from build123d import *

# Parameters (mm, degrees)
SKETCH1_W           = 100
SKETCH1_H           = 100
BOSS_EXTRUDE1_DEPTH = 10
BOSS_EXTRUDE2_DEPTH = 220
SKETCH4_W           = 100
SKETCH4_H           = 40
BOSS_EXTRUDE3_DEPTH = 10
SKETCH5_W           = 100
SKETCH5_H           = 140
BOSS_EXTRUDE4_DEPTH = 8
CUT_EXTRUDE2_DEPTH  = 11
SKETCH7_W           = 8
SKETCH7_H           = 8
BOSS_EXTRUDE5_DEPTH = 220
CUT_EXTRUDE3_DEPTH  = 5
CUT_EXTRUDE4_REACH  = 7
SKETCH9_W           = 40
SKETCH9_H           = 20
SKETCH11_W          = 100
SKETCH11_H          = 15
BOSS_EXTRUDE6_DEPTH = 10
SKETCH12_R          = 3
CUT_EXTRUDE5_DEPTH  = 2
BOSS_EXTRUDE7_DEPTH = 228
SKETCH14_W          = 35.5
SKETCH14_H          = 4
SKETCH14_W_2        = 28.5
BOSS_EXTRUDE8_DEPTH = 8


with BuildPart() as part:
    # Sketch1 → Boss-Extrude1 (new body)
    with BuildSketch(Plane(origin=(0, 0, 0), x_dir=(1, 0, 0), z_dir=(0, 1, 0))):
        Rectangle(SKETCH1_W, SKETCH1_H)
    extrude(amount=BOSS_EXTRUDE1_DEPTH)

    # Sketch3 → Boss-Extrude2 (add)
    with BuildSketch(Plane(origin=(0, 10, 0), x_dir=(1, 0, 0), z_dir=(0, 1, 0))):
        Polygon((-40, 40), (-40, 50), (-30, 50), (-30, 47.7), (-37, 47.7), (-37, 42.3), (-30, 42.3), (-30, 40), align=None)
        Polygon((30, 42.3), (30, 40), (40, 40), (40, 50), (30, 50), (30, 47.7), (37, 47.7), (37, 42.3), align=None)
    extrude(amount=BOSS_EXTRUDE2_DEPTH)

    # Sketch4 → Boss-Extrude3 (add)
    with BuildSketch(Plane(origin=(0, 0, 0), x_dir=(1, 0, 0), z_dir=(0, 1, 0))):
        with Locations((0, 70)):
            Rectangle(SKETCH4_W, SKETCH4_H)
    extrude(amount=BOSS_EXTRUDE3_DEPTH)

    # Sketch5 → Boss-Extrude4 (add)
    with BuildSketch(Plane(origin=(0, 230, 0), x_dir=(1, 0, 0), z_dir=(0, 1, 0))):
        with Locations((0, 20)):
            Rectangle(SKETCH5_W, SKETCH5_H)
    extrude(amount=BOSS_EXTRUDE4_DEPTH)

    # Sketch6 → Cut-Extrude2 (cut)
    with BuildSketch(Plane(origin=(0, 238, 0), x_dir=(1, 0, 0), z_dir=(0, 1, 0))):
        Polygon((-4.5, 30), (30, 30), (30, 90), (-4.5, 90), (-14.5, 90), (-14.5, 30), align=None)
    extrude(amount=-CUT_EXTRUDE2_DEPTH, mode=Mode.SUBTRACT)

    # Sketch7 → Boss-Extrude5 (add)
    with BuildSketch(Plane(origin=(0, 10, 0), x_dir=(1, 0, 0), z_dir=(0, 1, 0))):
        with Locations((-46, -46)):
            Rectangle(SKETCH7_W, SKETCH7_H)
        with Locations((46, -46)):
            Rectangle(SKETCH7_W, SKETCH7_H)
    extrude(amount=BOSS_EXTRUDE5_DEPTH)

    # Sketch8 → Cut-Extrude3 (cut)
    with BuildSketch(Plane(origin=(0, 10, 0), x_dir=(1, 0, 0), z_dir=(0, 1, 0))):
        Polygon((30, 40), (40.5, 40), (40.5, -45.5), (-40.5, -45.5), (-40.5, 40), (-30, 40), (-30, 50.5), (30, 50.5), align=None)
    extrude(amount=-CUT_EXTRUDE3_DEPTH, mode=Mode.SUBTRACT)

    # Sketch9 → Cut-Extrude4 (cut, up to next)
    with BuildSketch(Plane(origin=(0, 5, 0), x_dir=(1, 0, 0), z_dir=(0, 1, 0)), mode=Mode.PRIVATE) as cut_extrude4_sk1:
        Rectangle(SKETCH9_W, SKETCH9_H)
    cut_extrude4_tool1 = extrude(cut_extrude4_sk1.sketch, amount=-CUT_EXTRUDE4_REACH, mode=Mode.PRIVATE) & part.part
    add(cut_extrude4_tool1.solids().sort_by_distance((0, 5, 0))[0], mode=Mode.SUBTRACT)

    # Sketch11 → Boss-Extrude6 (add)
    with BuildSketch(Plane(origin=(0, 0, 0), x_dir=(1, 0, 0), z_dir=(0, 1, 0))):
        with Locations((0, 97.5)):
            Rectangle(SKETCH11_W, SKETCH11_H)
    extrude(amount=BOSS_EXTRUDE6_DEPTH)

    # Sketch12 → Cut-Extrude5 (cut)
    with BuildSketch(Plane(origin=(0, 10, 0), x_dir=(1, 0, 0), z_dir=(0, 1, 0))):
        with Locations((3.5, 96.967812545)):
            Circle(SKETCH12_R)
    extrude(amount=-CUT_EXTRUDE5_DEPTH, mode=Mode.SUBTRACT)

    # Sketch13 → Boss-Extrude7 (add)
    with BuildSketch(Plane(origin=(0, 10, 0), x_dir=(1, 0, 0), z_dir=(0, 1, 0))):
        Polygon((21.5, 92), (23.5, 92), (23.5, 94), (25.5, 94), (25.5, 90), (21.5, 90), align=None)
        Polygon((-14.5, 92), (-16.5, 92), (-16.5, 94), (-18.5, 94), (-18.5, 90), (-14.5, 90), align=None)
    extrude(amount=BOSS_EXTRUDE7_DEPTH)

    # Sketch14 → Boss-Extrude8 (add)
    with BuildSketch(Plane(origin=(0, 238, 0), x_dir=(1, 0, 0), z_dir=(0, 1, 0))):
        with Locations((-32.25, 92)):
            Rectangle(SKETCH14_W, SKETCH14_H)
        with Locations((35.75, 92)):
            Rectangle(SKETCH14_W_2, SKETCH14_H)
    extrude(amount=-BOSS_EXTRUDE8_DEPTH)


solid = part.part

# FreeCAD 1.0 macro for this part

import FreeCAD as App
import Part
import Sketcher

V = App.Vector
Q = App.Units.Quantity


def add_polygon(sketch, points):
    """Adds a closed chain of lines whose ends are joined by coincident constraints."""
    first, n = sketch.GeometryCount, len(points)
    for a, b in zip(points, points[1:] + points[:1]):
        sketch.addGeometry(Part.LineSegment(App.Vector(*a, 0), App.Vector(*b, 0)), False)
    for i in range(n):
        sketch.addConstraint(Sketcher.Constraint("Coincident", first + i, 2, first + (i + 1) % n, 1))

doc = App.newDocument("Part")
params = doc.addObject("Spreadsheet::Sheet", "Params")
for row, (alias, value) in enumerate([
    ("sketch1_width", "100 mm"),
    ("pad1_length", "10 mm"),
    ("sketch2_width", "10 mm"),
    ("sketch2_width2", "7 mm"),
    ("sketch2_height", "2.3 mm"),
    ("pad2_length", "220 mm"),
    ("sketch3_width", "100 mm"),
    ("sketch3_height", "40 mm"),
    ("pad3_length", "10 mm"),
    ("sketch4_width", "100 mm"),
    ("sketch4_height", "140 mm"),
    ("pad4_length", "8 mm"),
    ("sketch5_height", "60 mm"),
    ("sketch5_width", "44.5 mm"),
    ("pocket1_length", "11 mm"),
    ("sketch6_width", "8 mm"),
    ("pad5_length", "220 mm"),
    ("sketch7_width", "60 mm"),
    ("sketch7_width2", "81 mm"),
    ("sketch7_height", "85.5 mm"),
    ("pocket2_length", "5 mm"),
    ("sketch8_width", "40 mm"),
    ("sketch8_height", "20 mm"),
    ("sketch9_width", "100 mm"),
    ("sketch9_height", "15 mm"),
    ("pad6_length", "10 mm"),
    ("sketch10_diameter", "6 mm"),
    ("pocket4_length", "2 mm"),
    ("sketch11_width", "2 mm"),
    ("pad7_length", "228 mm"),
    ("sketch12_height", "4 mm"),
    ("sketch12_width", "35.5 mm"),
    ("sketch12_width2", "28.5 mm"),
    ("pad8_length", "8 mm"),
], start=1):
    params.set(f"A{row}", alias)
    params.set(f"B{row}", "=" + value)
    params.setAlias(f"B{row}", alias)

body = doc.addObject("PartDesign::Body", "Body")

# Sketch on XZ plane
sketch1 = body.newObject("Sketcher::SketchObject", "Sketch")
sketch1.AttachmentSupport = (doc.getObject("XZ_Plane"), [""])
sketch1.MapMode = "FlatFace"
add_polygon(sketch1, [(-50, -50), (-50, 50), (50, 50), (50, -50)])  # lines 0-3
sketch1.addConstraint([
    Sketcher.Constraint("Vertical", 0),
    Sketcher.Constraint("Horizontal", 1),
    Sketcher.Constraint("Vertical", 2),
    Sketcher.Constraint("Horizontal", 3),
    Sketcher.Constraint("Symmetric", 0, 2, 2, 2, -1, 1),
    Sketcher.Constraint("Equal", 3, 0),
    Sketcher.Constraint("DistanceX", 1, 1, 1, 2, Q("100 mm")),
])
sketch1.setExpression("Constraints[10]", "Params.sketch1_width")
pad1 = body.newObject("PartDesign::Pad", "Pad")
pad1.Profile = sketch1
pad1.setExpression("Length", "Params.pad1_length")
pad1.Reversed = True

# Sketch on XZ plane
sketch2 = body.newObject("Sketcher::SketchObject", "Sketch001")
sketch2.AttachmentSupport = (doc.getObject("XZ_Plane"), [""])
sketch2.MapMode = "FlatFace"
sketch2.AttachmentOffset = App.Placement(V(0, 0, -10), App.Rotation())
add_polygon(sketch2, [(-40, -50), (-40, -40), (-30, -40), (-30, -42.3), (-37, -42.3), (-37, -47.7), (-30, -47.7), (-30, -50)])  # lines 0-7
add_polygon(sketch2, [(30, -42.3), (30, -40), (40, -40), (40, -50), (30, -50), (30, -47.7), (37, -47.7), (37, -42.3)])  # lines 8-15
sketch2.addConstraint([
    Sketcher.Constraint("Vertical", 0),
    Sketcher.Constraint("Horizontal", 1),
    Sketcher.Constraint("Vertical", 2),
    Sketcher.Constraint("Horizontal", 3),
    Sketcher.Constraint("Vertical", 4),
    Sketcher.Constraint("Horizontal", 5),
    Sketcher.Constraint("Vertical", 6),
    Sketcher.Constraint("Horizontal", 7),
    Sketcher.Constraint("Vertical", 8),
    Sketcher.Constraint("Horizontal", 9),
    Sketcher.Constraint("Vertical", 10),
    Sketcher.Constraint("Horizontal", 11),
    Sketcher.Constraint("Vertical", 12),
    Sketcher.Constraint("Horizontal", 13),
    Sketcher.Constraint("Vertical", 14),
    Sketcher.Constraint("Horizontal", 15),
    Sketcher.Constraint("Symmetric", 1, 2, 8, 2, -2),
    Sketcher.Constraint("Symmetric", 7, 2, 10, 2, -2),
    Sketcher.Constraint("Symmetric", 5, 2, 12, 2, -2),
    Sketcher.Constraint("Symmetric", 3, 2, 14, 2, -2),
    Sketcher.Constraint("Vertical", 2, 2, 5, 2),
    Sketcher.Constraint("Equal", 11, 0),
    Sketcher.Constraint("Equal", 2, 6),
    Sketcher.Constraint("DistanceX", 1, 1, 1, 2, Q("10 mm")),
    Sketcher.Constraint("DistanceX", 3, 2, 3, 1, Q("7 mm")),
    Sketcher.Constraint("DistanceY", 2, 2, 2, 1, Q("2.3 mm")),
    Sketcher.Constraint("DistanceX", 0, 2, -1, 1, Q("40 mm")),
    Sketcher.Constraint("DistanceY", 0, 2, -1, 1, Q("40 mm")),
])
sketch2.setExpression("Constraints[39]", "Params.sketch2_width")
sketch2.setExpression("Constraints[40]", "Params.sketch2_width2")
sketch2.setExpression("Constraints[41]", "Params.sketch2_height")
pad2 = body.newObject("PartDesign::Pad", "Pad001")
pad2.Profile = sketch2
pad2.setExpression("Length", "Params.pad2_length")
pad2.Reversed = True

# Sketch on XZ plane
sketch3 = body.newObject("Sketcher::SketchObject", "Sketch002")
sketch3.AttachmentSupport = (doc.getObject("XZ_Plane"), [""])
sketch3.MapMode = "FlatFace"
add_polygon(sketch3, [(-50, -90), (-50, -50), (50, -50), (50, -90)])  # lines 0-3
sketch3.addConstraint([
    Sketcher.Constraint("Vertical", 0),
    Sketcher.Constraint("Horizontal", 1),
    Sketcher.Constraint("Vertical", 2),
    Sketcher.Constraint("Horizontal", 3),
    Sketcher.Constraint("DistanceX", 1, 1, 1, 2, Q("100 mm")),
    Sketcher.Constraint("DistanceY", 0, 1, 0, 2, Q("40 mm")),
    Sketcher.Constraint("DistanceX", 0, 2, -1, 1, Q("50 mm")),
    Sketcher.Constraint("DistanceY", 0, 2, -1, 1, Q("50 mm")),
])
sketch3.setExpression("Constraints[8]", "Params.sketch3_width")
sketch3.setExpression("Constraints[9]", "Params.sketch3_height")
pad3 = body.newObject("PartDesign::Pad", "Pad002")
pad3.Profile = sketch3
pad3.setExpression("Length", "Params.pad3_length")
pad3.Reversed = True

# Sketch on XZ plane
sketch4 = body.newObject("Sketcher::SketchObject", "Sketch003")
sketch4.AttachmentSupport = (doc.getObject("XZ_Plane"), [""])
sketch4.MapMode = "FlatFace"
sketch4.AttachmentOffset = App.Placement(V(0, 0, -230), App.Rotation())
add_polygon(sketch4, [(-50, -90), (-50, 50), (50, 50), (50, -90)])  # lines 0-3
sketch4.addConstraint([
    Sketcher.Constraint("Vertical", 0),
    Sketcher.Constraint("Horizontal", 1),
    Sketcher.Constraint("Vertical", 2),
    Sketcher.Constraint("Horizontal", 3),
    Sketcher.Constraint("DistanceX", 1, 1, 1, 2, Q("100 mm")),
    Sketcher.Constraint("DistanceY", 0, 1, 0, 2, Q("140 mm")),
    Sketcher.Constraint("DistanceX", 0, 2, -1, 1, Q("50 mm")),
    Sketcher.Constraint("DistanceY", -1, 1, 0, 2, Q("50 mm")),
])
sketch4.setExpression("Constraints[8]", "Params.sketch4_width")
sketch4.setExpression("Constraints[9]", "Params.sketch4_height")
pad4 = body.newObject("PartDesign::Pad", "Pad003")
pad4.Profile = sketch4
pad4.setExpression("Length", "Params.pad4_length")
pad4.Reversed = True

# Sketch on XZ plane
sketch5 = body.newObject("Sketcher::SketchObject", "Sketch004")
sketch5.AttachmentSupport = (doc.getObject("XZ_Plane"), [""])
sketch5.MapMode = "FlatFace"
sketch5.AttachmentOffset = App.Placement(V(0, 0, -238), App.Rotation())
add_polygon(sketch5, [(30, -30), (30, -90), (-14, -90), (-14, -30)])  # lines 0-3
sketch5.addConstraint([
    Sketcher.Constraint("Vertical", 0),
    Sketcher.Constraint("Horizontal", 1),
    Sketcher.Constraint("Vertical", 2),
    Sketcher.Constraint("Horizontal", 3),
    Sketcher.Constraint("DistanceY", 0, 2, 0, 1, Q("60 mm")),
    Sketcher.Constraint("DistanceX", 1, 2, 1, 1, Q("44.5 mm")),
    Sketcher.Constraint("DistanceX", -1, 1, 0, 2, Q("30 mm")),
    Sketcher.Constraint("DistanceY", 0, 2, -1, 1, Q("90 mm")),
])
sketch5.setExpression("Constraints[8]", "Params.sketch5_height")
sketch5.setExpression("Constraints[9]", "Params.sketch5_width")
pocket1 = body.newObject("PartDesign::Pocket", "Pocket")
pocket1.Profile = sketch5
pocket1.setExpression("Length", "Params.pocket1_length")
pocket1.Reversed = True

# Sketch on XZ plane
sketch6 = body.newObject("Sketcher::SketchObject", "Sketch005")
sketch6.AttachmentSupport = (doc.getObject("XZ_Plane"), [""])
sketch6.MapMode = "FlatFace"
sketch6.AttachmentOffset = App.Placement(V(0, 0, -10), App.Rotation())
add_polygon(sketch6, [(-50, 42), (-50, 50), (-42, 50), (-42, 42)])  # lines 0-3
add_polygon(sketch6, [(42, 42), (42, 50), (50, 50), (50, 42)])  # lines 4-7
sketch6.addConstraint([
    Sketcher.Constraint("Vertical", 0),
    Sketcher.Constraint("Horizontal", 1),
    Sketcher.Constraint("Vertical", 2),
    Sketcher.Constraint("Horizontal", 3),
    Sketcher.Constraint("Vertical", 4),
    Sketcher.Constraint("Horizontal", 5),
    Sketcher.Constraint("Vertical", 6),
    Sketcher.Constraint("Horizontal", 7),
    Sketcher.Constraint("Symmetric", 1, 2, 4, 2, -2),
    Sketcher.Constraint("Symmetric", 3, 2, 6, 2, -2),
    Sketcher.Constraint("Equal", 7, 0),
    Sketcher.Constraint("DistanceX", 1, 1, 1, 2, Q("8 mm")),
    Sketcher.Constraint("DistanceX", 0, 2, -1, 1, Q("50 mm")),
    Sketcher.Constraint("DistanceY", -1, 1, 0, 2, Q("50 mm")),
])
sketch6.setExpression("Constraints[19]", "Params.sketch6_width")
pad5 = body.newObject("PartDesign::Pad", "Pad004")
pad5.Profile = sketch6
pad5.setExpression("Length", "Params.pad5_length")
pad5.Reversed = True

# Sketch on XZ plane
sketch7 = body.newObject("Sketcher::SketchObject", "Sketch006")
sketch7.AttachmentSupport = (doc.getObject("XZ_Plane"), [""])
sketch7.MapMode = "FlatFace"
sketch7.AttachmentOffset = App.Placement(V(0, 0, -10), App.Rotation())
add_polygon(sketch7, [(40, -40), (30, -40), (30, -50), (-30, -50), (-30, -40), (-40, -40), (-40, 46), (40, 46)])  # lines 0-7
sketch7.addConstraint([
    Sketcher.Constraint("Horizontal", 0),
    Sketcher.Constraint("Vertical", 1),
    Sketcher.Constraint("Horizontal", 2),
    Sketcher.Constraint("Vertical", 3),
    Sketcher.Constraint("Horizontal", 4),
    Sketcher.Constraint("Vertical", 5),
    Sketcher.Constraint("Horizontal", 6),
    Sketcher.Constraint("Vertical", 7),
    Sketcher.Constraint("Symmetric", 0, 2, 3, 2, -2),
    Sketcher.Constraint("Equal", 0, 4),
    Sketcher.Constraint("Equal", 4, 1),
    Sketcher.Constraint("DistanceX", 2, 2, 2, 1, Q("60 mm")),
    Sketcher.Constraint("DistanceX", 6, 1, 6, 2, Q("81 mm")),
    Sketcher.Constraint("DistanceY", 5, 1, 5, 2, Q("85.5 mm")),
    Sketcher.Constraint("DistanceY", 0, 2, -1, 1, Q("40 mm")),
])
sketch7.setExpression("Constraints[19]", "Params.sketch7_width")
sketch7.setExpression("Constraints[20]", "Params.sketch7_width2")
sketch7.setExpression("Constraints[21]", "Params.sketch7_height")
pocket2 = body.newObject("PartDesign::Pocket", "Pocket001")
pocket2.Profile = sketch7
pocket2.setExpression("Length", "Params.pocket2_length")
pocket2.Reversed = True

# Sketch on XZ plane
sketch8 = body.newObject("Sketcher::SketchObject", "Sketch007")
sketch8.AttachmentSupport = (doc.getObject("XZ_Plane"), [""])
sketch8.MapMode = "FlatFace"
sketch8.AttachmentOffset = App.Placement(V(0, 0, -5), App.Rotation())
add_polygon(sketch8, [(-20, -10), (-20, 10), (20, 10), (20, -10)])  # lines 0-3
sketch8.addConstraint([
    Sketcher.Constraint("Vertical", 0),
    Sketcher.Constraint("Horizontal", 1),
    Sketcher.Constraint("Vertical", 2),
    Sketcher.Constraint("Horizontal", 3),
    Sketcher.Constraint("Symmetric", 0, 2, 2, 2, -1, 1),
    Sketcher.Constraint("DistanceX", 1, 1, 1, 2, Q("40 mm")),
    Sketcher.Constraint("DistanceY", 0, 1, 0, 2, Q("20 mm")),
])
sketch8.setExpression("Constraints[9]", "Params.sketch8_width")
sketch8.setExpression("Constraints[10]", "Params.sketch8_height")
pocket3 = body.newObject("PartDesign::Pocket", "Pocket002")
pocket3.Profile = sketch8
pocket3.Type = "UpToFirst"
pocket3.Reversed = True

# Sketch on XZ plane
sketch9 = body.newObject("Sketcher::SketchObject", "Sketch008")
sketch9.AttachmentSupport = (doc.getObject("XZ_Plane"), [""])
sketch9.MapMode = "FlatFace"
add_polygon(sketch9, [(-50, -105), (-50, -90), (50, -90), (50, -105)])  # lines 0-3
sketch9.addConstraint([
    Sketcher.Constraint("Vertical", 0),
    Sketcher.Constraint("Horizontal", 1),
    Sketcher.Constraint("Vertical", 2),
    Sketcher.Constraint("Horizontal", 3),
    Sketcher.Constraint("DistanceX", 1, 1, 1, 2, Q("100 mm")),
    Sketcher.Constraint("DistanceY", 0, 1, 0, 2, Q("15 mm")),
    Sketcher.Constraint("DistanceX", 0, 2, -1, 1, Q("50 mm")),
    Sketcher.Constraint("DistanceY", 0, 2, -1, 1, Q("90 mm")),
])
sketch9.setExpression("Constraints[8]", "Params.sketch9_width")
sketch9.setExpression("Constraints[9]", "Params.sketch9_height")
pad6 = body.newObject("PartDesign::Pad", "Pad005")
pad6.Profile = sketch9
pad6.setExpression("Length", "Params.pad6_length")
pad6.Reversed = True

# Sketch on XZ plane
sketch10 = body.newObject("Sketcher::SketchObject", "Sketch009")
sketch10.AttachmentSupport = (doc.getObject("XZ_Plane"), [""])
sketch10.MapMode = "FlatFace"
sketch10.AttachmentOffset = App.Placement(V(0, 0, -10), App.Rotation())
sketch10.addGeometry(Part.Circle(V(3.5, -97, 0), V(0, 0, 1), 3), False)
sketch10.addConstraint([
    Sketcher.Constraint("Diameter", 0, Q("6 mm")),
    Sketcher.Constraint("DistanceX", -1, 1, 0, 3, Q("3.5 mm")),
    Sketcher.Constraint("DistanceY", 0, 3, -1, 1, Q("96.967813 mm")),
])
sketch10.setExpression("Constraints[0]", "Params.sketch10_diameter")
pocket4 = body.newObject("PartDesign::Pocket", "Pocket003")
pocket4.Profile = sketch10
pocket4.setExpression("Length", "Params.pocket4_length")
pocket4.Reversed = True

# Sketch on XZ plane
sketch11 = body.newObject("Sketcher::SketchObject", "Sketch010")
sketch11.AttachmentSupport = (doc.getObject("XZ_Plane"), [""])
sketch11.MapMode = "FlatFace"
sketch11.AttachmentOffset = App.Placement(V(0, 0, -10), App.Rotation())
add_polygon(sketch11, [(23.5, -92), (21.5, -92), (21.5, -90), (25.5, -90), (25.5, -94), (23.5, -94)])  # lines 0-5
add_polygon(sketch11, [(-14.5, -92), (-16.5, -92), (-16.5, -94), (-18.5, -94), (-18.5, -90), (-14.5, -90)])  # lines 6-11
sketch11.addConstraint([
    Sketcher.Constraint("Horizontal", 0),
    Sketcher.Constraint("Vertical", 1),
    Sketcher.Constraint("Horizontal", 2),
    Sketcher.Constraint("Vertical", 3),
    Sketcher.Constraint("Horizontal", 4),
    Sketcher.Constraint("Vertical", 5),
    Sketcher.Constraint("Horizontal", 6),
    Sketcher.Constraint("Vertical", 7),
    Sketcher.Constraint("Horizontal", 8),
    Sketcher.Constraint("Vertical", 9),
    Sketcher.Constraint("Horizontal", 10),
    Sketcher.Constraint("Vertical", 11),
    Sketcher.Constraint("Horizontal", 5, 2, 6, 2),
    Sketcher.Constraint("Horizontal", 4, 2, 7, 2),
    Sketcher.Constraint("Horizontal", 2, 2, 9, 2),
    Sketcher.Constraint("Equal", 0, 4),
    Sketcher.Constraint("Equal", 4, 6),
    Sketcher.Constraint("Equal", 6, 8),
    Sketcher.Constraint("Equal", 8, 1),
    Sketcher.Constraint("Equal", 10, 3),
    Sketcher.Constraint("DistanceX", 0, 2, 0, 1, Q("2 mm")),
    Sketcher.Constraint("DistanceY", 0, 2, -1, 1, Q("92 mm")),
    Sketcher.Constraint("DistanceX", 6, 2, 0, 2, Q("38 mm")),
    Sketcher.Constraint("DistanceX", -1, 1, 0, 2, Q("21.5 mm")),
])
sketch11.setExpression("Constraints[32]", "Params.sketch11_width")
pad7 = body.newObject("PartDesign::Pad", "Pad006")
pad7.Profile = sketch11
pad7.setExpression("Length", "Params.pad7_length")
pad7.Reversed = True

# Sketch on XZ plane
sketch12 = body.newObject("Sketcher::SketchObject", "Sketch011")
sketch12.AttachmentSupport = (doc.getObject("XZ_Plane"), [""])
sketch12.MapMode = "FlatFace"
sketch12.AttachmentOffset = App.Placement(V(0, 0, -238), App.Rotation())
add_polygon(sketch12, [(-50, -94), (-50, -90), (-14.5, -90), (-14.5, -94)])  # lines 0-3
add_polygon(sketch12, [(21.5, -94), (21.5, -90), (50, -90), (50, -94)])  # lines 4-7
sketch12.addConstraint([
    Sketcher.Constraint("Vertical", 0),
    Sketcher.Constraint("Horizontal", 1),
    Sketcher.Constraint("Vertical", 2),
    Sketcher.Constraint("Horizontal", 3),
    Sketcher.Constraint("Vertical", 4),
    Sketcher.Constraint("Horizontal", 5),
    Sketcher.Constraint("Vertical", 6),
    Sketcher.Constraint("Horizontal", 7),
    Sketcher.Constraint("Symmetric", 0, 2, 5, 2, -2),
    Sketcher.Constraint("Horizontal", 3, 2, 6, 2),
    Sketcher.Constraint("DistanceY", 0, 1, 0, 2, Q("4 mm")),
    Sketcher.Constraint("DistanceX", 1, 1, 1, 2, Q("35.5 mm")),
    Sketcher.Constraint("DistanceX", 5, 1, 5, 2, Q("28.5 mm")),
    Sketcher.Constraint("DistanceX", 0, 2, -1, 1, Q("50 mm")),
    Sketcher.Constraint("DistanceY", 0, 2, -1, 1, Q("90 mm")),
])
sketch12.setExpression("Constraints[18]", "Params.sketch12_height")
sketch12.setExpression("Constraints[19]", "Params.sketch12_width")
sketch12.setExpression("Constraints[20]", "Params.sketch12_width2")
pad8 = body.newObject("PartDesign::Pad", "Pad007")
pad8.Profile = sketch12
pad8.setExpression("Length", "Params.pad8_length")

doc.recompute()
